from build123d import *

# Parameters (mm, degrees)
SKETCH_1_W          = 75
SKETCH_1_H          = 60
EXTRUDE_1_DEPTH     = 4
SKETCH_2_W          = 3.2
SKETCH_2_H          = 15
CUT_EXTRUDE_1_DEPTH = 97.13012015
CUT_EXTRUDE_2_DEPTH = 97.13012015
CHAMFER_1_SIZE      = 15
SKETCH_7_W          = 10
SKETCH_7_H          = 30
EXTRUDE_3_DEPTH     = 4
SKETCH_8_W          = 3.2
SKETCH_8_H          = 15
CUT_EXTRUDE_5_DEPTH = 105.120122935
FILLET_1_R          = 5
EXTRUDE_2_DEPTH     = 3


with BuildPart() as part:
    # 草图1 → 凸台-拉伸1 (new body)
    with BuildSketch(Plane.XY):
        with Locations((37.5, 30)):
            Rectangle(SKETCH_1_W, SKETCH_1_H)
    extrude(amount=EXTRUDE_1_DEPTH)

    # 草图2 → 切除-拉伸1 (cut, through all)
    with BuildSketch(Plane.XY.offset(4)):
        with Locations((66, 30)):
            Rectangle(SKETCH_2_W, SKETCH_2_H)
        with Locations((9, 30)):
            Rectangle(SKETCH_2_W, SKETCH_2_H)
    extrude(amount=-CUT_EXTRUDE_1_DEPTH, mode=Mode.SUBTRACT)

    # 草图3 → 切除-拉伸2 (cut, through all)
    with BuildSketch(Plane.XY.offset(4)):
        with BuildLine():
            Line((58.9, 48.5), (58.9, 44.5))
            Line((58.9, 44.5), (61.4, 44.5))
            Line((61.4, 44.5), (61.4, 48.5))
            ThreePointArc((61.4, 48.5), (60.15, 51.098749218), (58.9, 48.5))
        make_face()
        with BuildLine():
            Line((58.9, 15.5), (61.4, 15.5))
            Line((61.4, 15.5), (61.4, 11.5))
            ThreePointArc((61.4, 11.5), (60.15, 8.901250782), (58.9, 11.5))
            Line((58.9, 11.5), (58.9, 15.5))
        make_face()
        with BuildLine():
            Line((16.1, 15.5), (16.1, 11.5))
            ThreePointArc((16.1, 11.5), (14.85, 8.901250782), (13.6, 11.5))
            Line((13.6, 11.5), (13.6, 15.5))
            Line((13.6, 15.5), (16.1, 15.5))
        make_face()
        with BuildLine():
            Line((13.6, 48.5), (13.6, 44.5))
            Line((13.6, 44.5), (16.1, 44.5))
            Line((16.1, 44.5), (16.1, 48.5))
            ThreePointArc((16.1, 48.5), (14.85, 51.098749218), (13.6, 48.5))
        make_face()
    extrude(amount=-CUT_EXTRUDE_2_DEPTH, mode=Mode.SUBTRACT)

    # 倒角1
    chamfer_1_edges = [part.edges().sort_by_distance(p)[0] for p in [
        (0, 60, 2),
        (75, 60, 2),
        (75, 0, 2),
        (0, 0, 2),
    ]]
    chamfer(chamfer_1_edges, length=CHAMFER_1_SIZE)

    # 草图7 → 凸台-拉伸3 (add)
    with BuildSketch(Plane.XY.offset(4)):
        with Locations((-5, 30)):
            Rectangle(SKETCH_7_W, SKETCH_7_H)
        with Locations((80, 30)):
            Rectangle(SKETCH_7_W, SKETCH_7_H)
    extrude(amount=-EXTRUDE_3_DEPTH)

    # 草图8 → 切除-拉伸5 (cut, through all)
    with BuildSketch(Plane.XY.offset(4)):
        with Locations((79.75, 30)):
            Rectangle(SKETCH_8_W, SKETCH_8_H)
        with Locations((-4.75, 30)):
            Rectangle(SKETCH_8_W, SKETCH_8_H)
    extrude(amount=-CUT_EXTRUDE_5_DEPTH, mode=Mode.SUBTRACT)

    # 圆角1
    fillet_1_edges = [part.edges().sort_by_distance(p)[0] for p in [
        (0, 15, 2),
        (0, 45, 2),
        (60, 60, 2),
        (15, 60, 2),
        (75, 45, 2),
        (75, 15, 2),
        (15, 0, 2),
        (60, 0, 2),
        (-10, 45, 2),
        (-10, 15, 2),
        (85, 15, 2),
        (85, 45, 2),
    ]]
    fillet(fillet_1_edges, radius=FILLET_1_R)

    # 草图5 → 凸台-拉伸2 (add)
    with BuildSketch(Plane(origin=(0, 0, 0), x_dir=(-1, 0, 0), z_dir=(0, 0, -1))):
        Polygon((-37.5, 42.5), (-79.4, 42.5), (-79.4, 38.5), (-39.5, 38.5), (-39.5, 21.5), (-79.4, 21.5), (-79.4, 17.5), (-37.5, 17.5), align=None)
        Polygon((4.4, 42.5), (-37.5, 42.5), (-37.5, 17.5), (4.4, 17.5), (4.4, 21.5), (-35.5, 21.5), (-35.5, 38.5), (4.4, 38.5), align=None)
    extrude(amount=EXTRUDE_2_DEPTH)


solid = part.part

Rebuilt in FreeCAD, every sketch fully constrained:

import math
import FreeCAD as App
import Part
import Sketcher
Q = App.Units.Quantity


def edges_at(feature, points):
    """Names of the edges that pass closest to the given points."""
    edges = feature.Shape.Edges
    near = lambda p: min(range(len(edges)), key=lambda i: edges[i].distToShape(Part.Vertex(*p))[0])
    return sorted({f"Edge{near(p) + 1}" for p in points})


def add_polygon(sketch, points):
    """Adds a closed chain of lines whose ends are joined by coincident constraints."""
    first, n = sketch.GeometryCount, len(points)
    for a, b in zip(points, points[1:] + points[:1]):
        sketch.addGeometry(Part.LineSegment(App.Vector(*a, 0), App.Vector(*b, 0)), False)
    for i in range(n):
        sketch.addConstraint(Sketcher.Constraint("Coincident", first + i, 2, first + (i + 1) % n, 1))

doc = App.newDocument("Part")
body = doc.addObject("PartDesign::Body", "Body")

# Sketch on XY plane
sketch1 = body.newObject("Sketcher::SketchObject", "Sketch")
sketch1.AttachmentSupport = (doc.getObject("XY_Plane"), [""])
sketch1.MapMode = "FlatFace"
add_polygon(sketch1, [(0, 60), (0, 0), (75, 0), (75, 60)])  # lines 0-3
sketch1.addConstraint([
    Sketcher.Constraint("Vertical", 0),
    Sketcher.Constraint("Horizontal", 1),
    Sketcher.Constraint("Vertical", 2),
    Sketcher.Constraint("Horizontal", 3),
    Sketcher.Constraint("Coincident", 0, 2, -1, 1),
    Sketcher.Constraint("DistanceX", 1, 1, 1, 2, Q("75 mm")),
    Sketcher.Constraint("DistanceY", 0, 2, 0, 1, Q("60 mm")),
])
pad1 = body.newObject("PartDesign::Pad", "Pad")
pad1.Profile = sketch1
pad1.Length = 4

# Sketch on XY plane
sketch2 = body.newObject("Sketcher::SketchObject", "Sketch001")
sketch2.AttachmentSupport = (doc.getObject("XY_Plane"), [""])
sketch2.MapMode = "FlatFace"
sketch2.AttachmentOffset = App.Placement(App.Vector(0, 0, 4), App.Rotation())
add_polygon(sketch2, [(64.4, 37.5), (64.4, 22.5), (67.6, 22.5), (67.6, 37.5)])  # lines 0-3
add_polygon(sketch2, [(7.4, 37.5), (7.4, 22.5), (10.6, 22.5), (10.6, 37.5)])  # lines 4-7
sketch2.addConstraint([
    Sketcher.Constraint("Vertical", 0),
    Sketcher.Constraint("Horizontal", 1),
    Sketcher.Constraint("Vertical", 2),
    Sketcher.Constraint("Horizontal", 3),
    Sketcher.Constraint("Vertical", 4),
    Sketcher.Constraint("Horizontal", 5),
    Sketcher.Constraint("Vertical", 6),
    Sketcher.Constraint("Horizontal", 7),
    Sketcher.Constraint("Horizontal", 1, 2, 4, 2),
    Sketcher.Constraint("Horizontal", 3, 2, 6, 2),
    Sketcher.Constraint("Equal", 3, 5),
    Sketcher.Constraint("DistanceY", 0, 2, 0, 1, Q("15 mm")),
    Sketcher.Constraint("DistanceX", 1, 1, 1, 2, Q("3.2 mm")),
    Sketcher.Constraint("DistanceX", 4, 2, 0, 2, Q("57 mm")),
    Sketcher.Constraint("DistanceX", -1, 1, 0, 2, Q("64.4 mm")),
    Sketcher.Constraint("DistanceY", -1, 1, 0, 2, Q("22.5 mm")),
])
pocket1 = body.newObject("PartDesign::Pocket", "Pocket")
pocket1.Profile = sketch2
pocket1.Type = "ThroughAll"

# Sketch on XY plane
sketch3 = body.newObject("Sketcher::SketchObject", "Sketch002")
sketch3.AttachmentSupport = (doc.getObject("XY_Plane"), [""])
sketch3.MapMode = "FlatFace"
sketch3.AttachmentOffset = App.Placement(App.Vector(0, 0, 4), App.Rotation())
sketch3.addGeometry([
    Part.LineSegment(App.Vector(58.9, 48.5, 0), App.Vector(58.9, 44.5, 0)),  # 0
    Part.LineSegment(App.Vector(58.9, 44.5, 0), App.Vector(61.4, 44.5, 0)),  # 1
    Part.LineSegment(App.Vector(61.4, 44.5, 0), App.Vector(61.4, 48.5, 0)),  # 2
    Part.ArcOfCircle(Part.Circle(App.Vector(60.1, 49.5, 0), App.Vector(0, 0, 1), 1.6), math.radians(-39), math.radians(219)),  # 3
    Part.LineSegment(App.Vector(61.4, 15.5, 0), App.Vector(58.9, 15.5, 0)),  # 4
    Part.LineSegment(App.Vector(58.9, 15.5, 0), App.Vector(58.9, 11.5, 0)),  # 5
    Part.ArcOfCircle(Part.Circle(App.Vector(60.1, 10.5, 0), App.Vector(0, 0, 1), 1.6), math.radians(141), math.radians(399)),  # 6
    Part.LineSegment(App.Vector(61.4, 11.5, 0), App.Vector(61.4, 15.5, 0)),  # 7
    Part.LineSegment(App.Vector(16.1, 11.5, 0), App.Vector(16.1, 15.5, 0)),  # 8
    Part.LineSegment(App.Vector(16.1, 15.5, 0), App.Vector(13.6, 15.5, 0)),  # 9
    Part.LineSegment(App.Vector(13.6, 15.5, 0), App.Vector(13.6, 11.5, 0)),  # 10
    Part.ArcOfCircle(Part.Circle(App.Vector(14.8, 10.5, 0), App.Vector(0, 0, 1), 1.6), math.radians(141), math.radians(399)),  # 11
    Part.LineSegment(App.Vector(13.6, 48.5, 0), App.Vector(13.6, 44.5, 0)),  # 12
    Part.LineSegment(App.Vector(13.6, 44.5, 0), App.Vector(16.1, 44.5, 0)),  # 13
    Part.LineSegment(App.Vector(16.1, 44.5, 0), App.Vector(16.1, 48.5, 0)),  # 14
    Part.ArcOfCircle(Part.Circle(App.Vector(14.8, 49.5, 0), App.Vector(0, 0, 1), 1.6), math.radians(-39), math.radians(219)),  # 15
], False)
sketch3.addConstraint([
    Sketcher.Constraint("Coincident", 0, 2, 1, 1),
    Sketcher.Constraint("Coincident", 1, 2, 2, 1),
    Sketcher.Constraint("Coincident", 2, 2, 3, 1),
    Sketcher.Constraint("Coincident", 3, 2, 0, 1),
    Sketcher.Constraint("Coincident", 4, 2, 5, 1),
    Sketcher.Constraint("Coincident", 5, 2, 6, 1),
    Sketcher.Constraint("Coincident", 6, 2, 7, 1),
    Sketcher.Constraint("Coincident", 7, 2, 4, 1),
    Sketcher.Constraint("Coincident", 8, 2, 9, 1),
    Sketcher.Constraint("Coincident", 9, 2, 10, 1),
    Sketcher.Constraint("Coincident", 10, 2, 11, 1),
    Sketcher.Constraint("Coincident", 11, 2, 8, 1),
    Sketcher.Constraint("Coincident", 12, 2, 13, 1),
    Sketcher.Constraint("Coincident", 13, 2, 14, 1),
    Sketcher.Constraint("Coincident", 14, 2, 15, 1),
    Sketcher.Constraint("Coincident", 15, 2, 12, 1),
    Sketcher.Constraint("Vertical", 0),
    Sketcher.Constraint("Horizontal", 1),
    Sketcher.Constraint("Vertical", 2),
    Sketcher.Constraint("Horizontal", 4),
    Sketcher.Constraint("Vertical", 5),
    Sketcher.Constraint("Vertical", 7),
    Sketcher.Constraint("Vertical", 8),
    Sketcher.Constraint("Horizontal", 9),
    Sketcher.Constraint("Vertical", 10),
    Sketcher.Constraint("Vertical", 12),
    Sketcher.Constraint("Horizontal", 13),
    Sketcher.Constraint("Vertical", 14),
    Sketcher.Constraint("Equal", 3, 6),
    Sketcher.Constraint("Equal", 6, 11),
    Sketcher.Constraint("Equal", 11, 15),
    Sketcher.Constraint("Horizontal", 6, 3, 11, 3),
    Sketcher.Constraint("Horizontal", 3, 3, 15, 3),
    Sketcher.Constraint("Horizontal", 2, 2, 3, 2),
    Sketcher.Constraint("Horizontal", 5, 2, 6, 2),
    Sketcher.Constraint("Horizontal", 7, 2, 8, 2),
    Sketcher.Constraint("Horizontal", 6, 2, 10, 2),
    Sketcher.Constraint("Horizontal", 10, 2, 11, 2),
    Sketcher.Constraint("Horizontal", 1, 2, 12, 2),
    Sketcher.Constraint("Horizontal", 3, 2, 14, 2),
    Sketcher.Constraint("Horizontal", 14, 2, 15, 2),
    Sketcher.Constraint("Vertical", 3, 3, 6, 3),
    Sketcher.Constraint("Vertical", 11, 3, 15, 3),
    Sketcher.Constraint("Vertical", 3, 2, 4, 2),
    Sketcher.Constraint("Equal", 2, 5),
    Sketcher.Constraint("Radius", 3, Q("1.6 mm")),
    Sketcher.Constraint("DistanceY", 0, 2, 0, 1, Q("4 mm")),
    Sketcher.Constraint("DistanceX", 1, 1, 1, 2, Q("2.5 mm")),
    Sketcher.Constraint("DistanceY", 4, 2, 0, 2, Q("29 mm")),
    Sketcher.Constraint("DistanceX", -1, 1, 0, 2, Q("58.9 mm")),
    Sketcher.Constraint("DistanceY", -1, 1, 0, 2, Q("44.5 mm")),
    Sketcher.Constraint("DistanceX", -1, 1, 8, 2, Q("16.1 mm")),
])
pocket2 = body.newObject("PartDesign::Pocket", "Pocket001")
pocket2.Profile = sketch3
pocket2.Type = "ThroughAll"
doc.recompute()

chamfer = body.newObject("PartDesign::Chamfer", "Chamfer")
chamfer.Base = (pocket2, edges_at(pocket2, [
    (0, 60, 2),
    (75, 60, 2),
    (75, 0, 2),
    (0, 0, 2),
]))
chamfer.Size = 15

# Sketch on XY plane
sketch4 = body.newObject("Sketcher::SketchObject", "Sketch003")
sketch4.AttachmentSupport = (doc.getObject("XY_Plane"), [""])
sketch4.MapMode = "FlatFace"
sketch4.AttachmentOffset = App.Placement(App.Vector(0, 0, 4), App.Rotation())
add_polygon(sketch4, [(-10, 45), (-10, 15), (0, 15), (0, 45)])  # lines 0-3
add_polygon(sketch4, [(75, 45), (75, 15), (85, 15), (85, 45)])  # lines 4-7
sketch4.addConstraint([
    Sketcher.Constraint("Vertical", 0),
    Sketcher.Constraint("Horizontal", 1),
    Sketcher.Constraint("Vertical", 2),
    Sketcher.Constraint("Horizontal", 3),
    Sketcher.Constraint("Vertical", 4),
    Sketcher.Constraint("Horizontal", 5),
    Sketcher.Constraint("Vertical", 6),
    Sketcher.Constraint("Horizontal", 7),
    Sketcher.Constraint("PointOnObject", 1, 2, -2),
    Sketcher.Constraint("Horizontal", 1, 2, 4, 2),
    Sketcher.Constraint("Horizontal", 3, 2, 6, 2),
    Sketcher.Constraint("Equal", 3, 5),
    Sketcher.Constraint("DistanceX", 1, 1, 1, 2, Q("10 mm")),
    Sketcher.Constraint("DistanceY", 0, 2, 0, 1, Q("30 mm")),
    Sketcher.Constraint("DistanceY", -1, 1, 0, 2, Q("15 mm")),
    Sketcher.Constraint("DistanceX", -1, 1, 4, 2, Q("75 mm")),
])
pad2 = body.newObject("PartDesign::Pad", "Pad001")
pad2.Profile = sketch4
pad2.Length = 4
pad2.Reversed = True

# Sketch on XY plane
sketch5 = body.newObject("Sketcher::SketchObject", "Sketch004")
sketch5.AttachmentSupport = (doc.getObject("XY_Plane"), [""])
sketch5.MapMode = "FlatFace"
sketch5.AttachmentOffset = App.Placement(App.Vector(0, 0, 4), App.Rotation())
add_polygon(sketch5, [(78.2, 37.5), (78.2, 22.5), (81.3, 22.5), (81.3, 37.5)])  # lines 0-3
add_polygon(sketch5, [(-6.3, 37.5), (-6.3, 22.5), (-3.1, 22.5), (-3.1, 37.5)])  # lines 4-7
sketch5.addConstraint([
    Sketcher.Constraint("Vertical", 0),
    Sketcher.Constraint("Horizontal", 1),
    Sketcher.Constraint("Vertical", 2),
    Sketcher.Constraint("Horizontal", 3),
    Sketcher.Constraint("Vertical", 4),
    Sketcher.Constraint("Horizontal", 5),
    Sketcher.Constraint("Vertical", 6),
    Sketcher.Constraint("Horizontal", 7),
    Sketcher.Constraint("Horizontal", 1, 2, 4, 2),
    Sketcher.Constraint("Horizontal", 3, 2, 6, 2),
    Sketcher.Constraint("Equal", 3, 5),
    Sketcher.Constraint("DistanceY", 0, 2, 0, 1, Q("15 mm")),
    Sketcher.Constraint("DistanceX", 1, 1, 1, 2, Q("3.2 mm")),
    Sketcher.Constraint("DistanceY", -1, 1, 0, 2, Q("22.5 mm")),
    Sketcher.Constraint("DistanceX", 4, 2, 0, 2, Q("84.5 mm")),
    Sketcher.Constraint("DistanceX", -1, 1, 0, 2, Q("78.15 mm")),
])
pocket3 = body.newObject("PartDesign::Pocket", "Pocket002")
pocket3.Profile = sketch5
pocket3.Type = "ThroughAll"
doc.recompute()

fillet = body.newObject("PartDesign::Fillet", "Fillet")
fillet.Base = (pocket3, edges_at(pocket3, [
    (0, 15, 2),
    (0, 45, 2),
    (60, 60, 2),
    (15, 60, 2),
    (75, 45, 2),
    (75, 15, 2),
    (15, 0, 2),
    (60, 0, 2),
    (-10, 45, 2),
    (-10, 15, 2),
    (85, 15, 2),
    (85, 45, 2),
]))
fillet.Radius = 5

# Sketch on XY plane
sketch6 = body.newObject("Sketcher::SketchObject", "Sketch005")
sketch6.AttachmentSupport = (doc.getObject("XY_Plane"), [""])
sketch6.MapMode = "FlatFace"
add_polygon(sketch6, [(79.4, 42.5), (79.4, 38.5), (39.5, 38.5), (39.5, 21.5), (79.4, 21.5), (79.4, 17.5), (-4.4, 17.5), (-4.4, 21.5), (35.5, 21.5), (35.5, 38.5), (-4.4, 38.5), (-4.4, 42.5)])  # lines 0-11
sketch6.addConstraint([
    Sketcher.Constraint("Vertical", 0),
    Sketcher.Constraint("Horizontal", 1),
    Sketcher.Constraint("Vertical", 2),
    Sketcher.Constraint("Horizontal", 3),
    Sketcher.Constraint("Vertical", 4),
    Sketcher.Constraint("Horizontal", 5),
    Sketcher.Constraint("Vertical", 6),
    Sketcher.Constraint("Horizontal", 7),
    Sketcher.Constraint("Vertical", 8),
    Sketcher.Constraint("Horizontal", 9),
    Sketcher.Constraint("Vertical", 10),
    Sketcher.Constraint("Horizontal", 11),
    Sketcher.Constraint("Horizontal", 3, 2, 6, 2),
    Sketcher.Constraint("Horizontal", 1, 2, 8, 2),
    Sketcher.Constraint("Vertical", 0, 2, 3, 2),
    Sketcher.Constraint("Vertical", 6, 2, 9, 2),
    Sketcher.Constraint("Equal", 3, 7),
    Sketcher.Constraint("Equal", 0, 4),
    Sketcher.Constraint("DistanceY", 0, 2, 0, 1, Q("4 mm")),
    Sketcher.Constraint("DistanceY", 2, 2, 2, 1, Q("17 mm")),
    Sketcher.Constraint("DistanceX", 1, 2, 1, 1, Q("39.9 mm")),
    Sketcher.Constraint("DistanceX", 5, 2, 5, 1, Q("83.8 mm")),
    Sketcher.Constraint("DistanceX", -1, 1, 0, 2, Q("79.4 mm")),
    Sketcher.Constraint("DistanceY", -1, 1, 0, 2, Q("38.5 mm")),
])
pad3 = body.newObject("PartDesign::Pad", "Pad002")
pad3.Profile = sketch6
pad3.Length = 3
pad3.Reversed = True

doc.recompute()
